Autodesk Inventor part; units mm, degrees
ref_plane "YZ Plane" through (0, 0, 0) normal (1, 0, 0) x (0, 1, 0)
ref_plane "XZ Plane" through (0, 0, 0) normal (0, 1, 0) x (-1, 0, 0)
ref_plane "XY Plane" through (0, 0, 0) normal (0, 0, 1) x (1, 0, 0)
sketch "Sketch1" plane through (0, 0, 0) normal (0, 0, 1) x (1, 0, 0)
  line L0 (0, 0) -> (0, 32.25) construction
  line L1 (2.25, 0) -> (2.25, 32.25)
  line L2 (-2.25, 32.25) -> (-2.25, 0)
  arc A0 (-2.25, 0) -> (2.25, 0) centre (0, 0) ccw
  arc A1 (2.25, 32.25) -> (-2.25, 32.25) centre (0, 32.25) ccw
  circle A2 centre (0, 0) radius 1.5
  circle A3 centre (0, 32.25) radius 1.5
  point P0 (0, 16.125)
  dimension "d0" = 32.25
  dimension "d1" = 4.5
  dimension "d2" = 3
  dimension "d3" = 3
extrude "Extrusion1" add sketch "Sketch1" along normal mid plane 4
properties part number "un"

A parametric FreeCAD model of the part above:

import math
import FreeCAD as App
import Part
import Sketcher
from FreeCAD import Vector
Q = App.Units.Quantity

doc = App.newDocument("Part")
body = doc.addObject("PartDesign::Body", "Body")

# Sketch on XY plane
sketch1 = body.newObject("Sketcher::SketchObject", "Sketch")
sketch1.AttachmentSupport = (doc.getObject("XY_Plane"), [""])
sketch1.MapMode = "FlatFace"
sketch1.addGeometry([
    Part.ArcOfCircle(Part.Circle(Vector(0, 0, 0), Vector(0, 0, 1), 2.2), math.radians(180), math.radians(360)),  # 0
    Part.LineSegment(Vector(2.2, 0, 0), Vector(2.2, 32.2, 0)),  # 1
    Part.ArcOfCircle(Part.Circle(Vector(0, 32.2, 0), Vector(0, 0, 1), 2.2), math.radians(0), math.radians(180)),  # 2
    Part.LineSegment(Vector(-2.2, 32.2, 0), Vector(-2.2, 0, 0)),  # 3
    Part.Circle(Vector(0, 0, 0), Vector(0, 0, 1), 1.5),  # 4
    Part.Circle(Vector(0, 32.2, 0), Vector(0, 0, 1), 1.5),  # 5
], False)
sketch1.addConstraint([
    Sketcher.Constraint("Tangent", 0, 2, 1, 1),
    Sketcher.Constraint("Tangent", 1, 2, 2, 1),
    Sketcher.Constraint("Tangent", 2, 2, 3, 1),
    Sketcher.Constraint("Tangent", 3, 2, 0, 1),
    Sketcher.Constraint("Vertical", 1),
    Sketcher.Constraint("Vertical", 3),
    Sketcher.Constraint("Coincident", 0, 3, -1, 1),
    Sketcher.Constraint("Coincident", 4, 3, -1, 1),
    Sketcher.Constraint("Coincident", 5, 3, 2, 3),
    Sketcher.Constraint("Equal", 4, 5),
    Sketcher.Constraint("Diameter", 4, Q("3 mm")),
    Sketcher.Constraint("Radius", 0, Q("2.25 mm")),
    Sketcher.Constraint("DistanceY", 1, 1, 1, 2, Q("32.25 mm")),
])
pad1 = body.newObject("PartDesign::Pad", "Pad")
pad1.Profile = sketch1
pad1.Length = 4
pad1.Midplane = True

doc.recompute()
